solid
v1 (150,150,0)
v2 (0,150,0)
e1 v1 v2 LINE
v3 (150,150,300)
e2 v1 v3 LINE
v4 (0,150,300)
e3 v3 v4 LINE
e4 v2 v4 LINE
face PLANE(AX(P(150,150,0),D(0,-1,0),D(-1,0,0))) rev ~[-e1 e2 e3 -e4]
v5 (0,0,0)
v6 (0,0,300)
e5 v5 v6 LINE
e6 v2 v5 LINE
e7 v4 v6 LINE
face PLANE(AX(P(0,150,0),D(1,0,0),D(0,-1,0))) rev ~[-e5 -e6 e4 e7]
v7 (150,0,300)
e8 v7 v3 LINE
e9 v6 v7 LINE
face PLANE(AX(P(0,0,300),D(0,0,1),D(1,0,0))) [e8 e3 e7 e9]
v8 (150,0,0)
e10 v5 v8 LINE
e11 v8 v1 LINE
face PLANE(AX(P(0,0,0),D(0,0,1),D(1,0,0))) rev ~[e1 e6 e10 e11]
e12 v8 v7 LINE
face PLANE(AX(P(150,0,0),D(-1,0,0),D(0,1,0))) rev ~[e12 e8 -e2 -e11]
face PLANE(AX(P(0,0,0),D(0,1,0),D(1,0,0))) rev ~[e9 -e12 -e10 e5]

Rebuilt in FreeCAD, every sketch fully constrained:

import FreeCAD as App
import Part
import Sketcher
from FreeCAD import Vector


def add_polygon(sketch, points):
    """Adds a closed chain of lines whose ends are joined by coincident constraints."""
    first, n = sketch.GeometryCount, len(points)
    for a, b in zip(points, points[1:] + points[:1]):
        sketch.addGeometry(Part.LineSegment(App.Vector(*a, 0), App.Vector(*b, 0)), False)
    for i in range(n):
        sketch.addConstraint(Sketcher.Constraint("Coincident", first + i, 2, first + (i + 1) % n, 1))

doc = App.newDocument("Part")
params = doc.addObject("Spreadsheet::Sheet", "Params")
for row, (alias, value) in enumerate([
    ("sketch1_width", "150 mm"),
    ("pad1_length", "300 mm"),
], start=1):
    params.set(f"A{row}", alias)
    params.set(f"B{row}", "=" + value)
    params.setAlias(f"B{row}", alias)

body = doc.addObject("PartDesign::Body", "Body")

# Sketch on XY plane
sketch1 = body.newObject("Sketcher::SketchObject", "Sketch")
sketch1.AttachmentSupport = (doc.getObject("XY_Plane"), [""])
sketch1.MapMode = "FlatFace"
add_polygon(sketch1, [(0, 150), (0, 0), (150, 0), (150, 150)])  # lines 0-3
sketch1.addConstraint([
    Sketcher.Constraint("Vertical", 0),
    Sketcher.Constraint("Horizontal", 1),
    Sketcher.Constraint("Vertical", 2),
    Sketcher.Constraint("Horizontal", 3),
    Sketcher.Constraint("Coincident", 0, 2, -1, 1),
    Sketcher.Constraint("Equal", 3, 0),
    Sketcher.Constraint("DistanceX", 1, 1, 1, 2, 150.0),
])
sketch1.setExpression("Constraints[10]", "Params.sketch1_width")
pad1 = body.newObject("PartDesign::Pad", "Pad")
pad1.Profile = sketch1
pad1.setExpression("Length", "Params.pad1_length")

doc.recompute()
